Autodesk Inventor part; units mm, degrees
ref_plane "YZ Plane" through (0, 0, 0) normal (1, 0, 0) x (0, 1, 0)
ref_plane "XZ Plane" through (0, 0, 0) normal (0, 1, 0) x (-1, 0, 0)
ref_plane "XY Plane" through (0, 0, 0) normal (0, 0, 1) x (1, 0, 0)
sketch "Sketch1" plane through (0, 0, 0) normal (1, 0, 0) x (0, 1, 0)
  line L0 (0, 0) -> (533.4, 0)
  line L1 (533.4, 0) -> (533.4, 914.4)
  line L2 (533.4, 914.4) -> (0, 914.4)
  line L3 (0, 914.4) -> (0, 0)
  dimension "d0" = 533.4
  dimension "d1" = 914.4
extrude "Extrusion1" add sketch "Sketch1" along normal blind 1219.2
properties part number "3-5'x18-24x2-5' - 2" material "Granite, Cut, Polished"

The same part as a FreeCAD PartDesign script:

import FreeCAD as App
import Part
import Sketcher

V = App.Vector
Q = App.Units.Quantity

doc = App.newDocument("Part")
body = doc.addObject("PartDesign::Body", "Body")

sketch1 = body.newObject("Sketcher::SketchObject", "Sketch")
sketch1.AttachmentSupport = (doc.getObject("YZ_Plane"), [""])
sketch1.MapMode = "FlatFace"
sketch1.addGeometry([
    Part.LineSegment(V(0, 914, 0), V(0, 0, 0)),
    Part.LineSegment(V(0, 0, 0), V(533, 0, 0)),
    Part.LineSegment(V(533, 0, 0), V(533, 914, 0)),
    Part.LineSegment(V(533, 914, 0), V(0, 914, 0)),
], False)
sketch1.addConstraint([
    Sketcher.Constraint("Coincident", 0, 2, 1, 1),
    Sketcher.Constraint("Coincident", 1, 2, 2, 1),
    Sketcher.Constraint("Coincident", 2, 2, 3, 1),
    Sketcher.Constraint("Coincident", 3, 2, 0, 1),
    Sketcher.Constraint("Vertical", 0),
    Sketcher.Constraint("Horizontal", 1),
    Sketcher.Constraint("Vertical", 2),
    Sketcher.Constraint("Horizontal", 3),
    Sketcher.Constraint("Coincident", 0, 2, -1, 1),
    Sketcher.Constraint("DistanceX", 1, 1, 1, 2, Q("21 in")),
    Sketcher.Constraint("DistanceY", 0, 2, 0, 1, Q("36 in")),
])
pad1 = body.newObject("PartDesign::Pad", "Pad")
pad1.Profile = sketch1
pad1.Length = Q("48 in")

doc.recompute()
